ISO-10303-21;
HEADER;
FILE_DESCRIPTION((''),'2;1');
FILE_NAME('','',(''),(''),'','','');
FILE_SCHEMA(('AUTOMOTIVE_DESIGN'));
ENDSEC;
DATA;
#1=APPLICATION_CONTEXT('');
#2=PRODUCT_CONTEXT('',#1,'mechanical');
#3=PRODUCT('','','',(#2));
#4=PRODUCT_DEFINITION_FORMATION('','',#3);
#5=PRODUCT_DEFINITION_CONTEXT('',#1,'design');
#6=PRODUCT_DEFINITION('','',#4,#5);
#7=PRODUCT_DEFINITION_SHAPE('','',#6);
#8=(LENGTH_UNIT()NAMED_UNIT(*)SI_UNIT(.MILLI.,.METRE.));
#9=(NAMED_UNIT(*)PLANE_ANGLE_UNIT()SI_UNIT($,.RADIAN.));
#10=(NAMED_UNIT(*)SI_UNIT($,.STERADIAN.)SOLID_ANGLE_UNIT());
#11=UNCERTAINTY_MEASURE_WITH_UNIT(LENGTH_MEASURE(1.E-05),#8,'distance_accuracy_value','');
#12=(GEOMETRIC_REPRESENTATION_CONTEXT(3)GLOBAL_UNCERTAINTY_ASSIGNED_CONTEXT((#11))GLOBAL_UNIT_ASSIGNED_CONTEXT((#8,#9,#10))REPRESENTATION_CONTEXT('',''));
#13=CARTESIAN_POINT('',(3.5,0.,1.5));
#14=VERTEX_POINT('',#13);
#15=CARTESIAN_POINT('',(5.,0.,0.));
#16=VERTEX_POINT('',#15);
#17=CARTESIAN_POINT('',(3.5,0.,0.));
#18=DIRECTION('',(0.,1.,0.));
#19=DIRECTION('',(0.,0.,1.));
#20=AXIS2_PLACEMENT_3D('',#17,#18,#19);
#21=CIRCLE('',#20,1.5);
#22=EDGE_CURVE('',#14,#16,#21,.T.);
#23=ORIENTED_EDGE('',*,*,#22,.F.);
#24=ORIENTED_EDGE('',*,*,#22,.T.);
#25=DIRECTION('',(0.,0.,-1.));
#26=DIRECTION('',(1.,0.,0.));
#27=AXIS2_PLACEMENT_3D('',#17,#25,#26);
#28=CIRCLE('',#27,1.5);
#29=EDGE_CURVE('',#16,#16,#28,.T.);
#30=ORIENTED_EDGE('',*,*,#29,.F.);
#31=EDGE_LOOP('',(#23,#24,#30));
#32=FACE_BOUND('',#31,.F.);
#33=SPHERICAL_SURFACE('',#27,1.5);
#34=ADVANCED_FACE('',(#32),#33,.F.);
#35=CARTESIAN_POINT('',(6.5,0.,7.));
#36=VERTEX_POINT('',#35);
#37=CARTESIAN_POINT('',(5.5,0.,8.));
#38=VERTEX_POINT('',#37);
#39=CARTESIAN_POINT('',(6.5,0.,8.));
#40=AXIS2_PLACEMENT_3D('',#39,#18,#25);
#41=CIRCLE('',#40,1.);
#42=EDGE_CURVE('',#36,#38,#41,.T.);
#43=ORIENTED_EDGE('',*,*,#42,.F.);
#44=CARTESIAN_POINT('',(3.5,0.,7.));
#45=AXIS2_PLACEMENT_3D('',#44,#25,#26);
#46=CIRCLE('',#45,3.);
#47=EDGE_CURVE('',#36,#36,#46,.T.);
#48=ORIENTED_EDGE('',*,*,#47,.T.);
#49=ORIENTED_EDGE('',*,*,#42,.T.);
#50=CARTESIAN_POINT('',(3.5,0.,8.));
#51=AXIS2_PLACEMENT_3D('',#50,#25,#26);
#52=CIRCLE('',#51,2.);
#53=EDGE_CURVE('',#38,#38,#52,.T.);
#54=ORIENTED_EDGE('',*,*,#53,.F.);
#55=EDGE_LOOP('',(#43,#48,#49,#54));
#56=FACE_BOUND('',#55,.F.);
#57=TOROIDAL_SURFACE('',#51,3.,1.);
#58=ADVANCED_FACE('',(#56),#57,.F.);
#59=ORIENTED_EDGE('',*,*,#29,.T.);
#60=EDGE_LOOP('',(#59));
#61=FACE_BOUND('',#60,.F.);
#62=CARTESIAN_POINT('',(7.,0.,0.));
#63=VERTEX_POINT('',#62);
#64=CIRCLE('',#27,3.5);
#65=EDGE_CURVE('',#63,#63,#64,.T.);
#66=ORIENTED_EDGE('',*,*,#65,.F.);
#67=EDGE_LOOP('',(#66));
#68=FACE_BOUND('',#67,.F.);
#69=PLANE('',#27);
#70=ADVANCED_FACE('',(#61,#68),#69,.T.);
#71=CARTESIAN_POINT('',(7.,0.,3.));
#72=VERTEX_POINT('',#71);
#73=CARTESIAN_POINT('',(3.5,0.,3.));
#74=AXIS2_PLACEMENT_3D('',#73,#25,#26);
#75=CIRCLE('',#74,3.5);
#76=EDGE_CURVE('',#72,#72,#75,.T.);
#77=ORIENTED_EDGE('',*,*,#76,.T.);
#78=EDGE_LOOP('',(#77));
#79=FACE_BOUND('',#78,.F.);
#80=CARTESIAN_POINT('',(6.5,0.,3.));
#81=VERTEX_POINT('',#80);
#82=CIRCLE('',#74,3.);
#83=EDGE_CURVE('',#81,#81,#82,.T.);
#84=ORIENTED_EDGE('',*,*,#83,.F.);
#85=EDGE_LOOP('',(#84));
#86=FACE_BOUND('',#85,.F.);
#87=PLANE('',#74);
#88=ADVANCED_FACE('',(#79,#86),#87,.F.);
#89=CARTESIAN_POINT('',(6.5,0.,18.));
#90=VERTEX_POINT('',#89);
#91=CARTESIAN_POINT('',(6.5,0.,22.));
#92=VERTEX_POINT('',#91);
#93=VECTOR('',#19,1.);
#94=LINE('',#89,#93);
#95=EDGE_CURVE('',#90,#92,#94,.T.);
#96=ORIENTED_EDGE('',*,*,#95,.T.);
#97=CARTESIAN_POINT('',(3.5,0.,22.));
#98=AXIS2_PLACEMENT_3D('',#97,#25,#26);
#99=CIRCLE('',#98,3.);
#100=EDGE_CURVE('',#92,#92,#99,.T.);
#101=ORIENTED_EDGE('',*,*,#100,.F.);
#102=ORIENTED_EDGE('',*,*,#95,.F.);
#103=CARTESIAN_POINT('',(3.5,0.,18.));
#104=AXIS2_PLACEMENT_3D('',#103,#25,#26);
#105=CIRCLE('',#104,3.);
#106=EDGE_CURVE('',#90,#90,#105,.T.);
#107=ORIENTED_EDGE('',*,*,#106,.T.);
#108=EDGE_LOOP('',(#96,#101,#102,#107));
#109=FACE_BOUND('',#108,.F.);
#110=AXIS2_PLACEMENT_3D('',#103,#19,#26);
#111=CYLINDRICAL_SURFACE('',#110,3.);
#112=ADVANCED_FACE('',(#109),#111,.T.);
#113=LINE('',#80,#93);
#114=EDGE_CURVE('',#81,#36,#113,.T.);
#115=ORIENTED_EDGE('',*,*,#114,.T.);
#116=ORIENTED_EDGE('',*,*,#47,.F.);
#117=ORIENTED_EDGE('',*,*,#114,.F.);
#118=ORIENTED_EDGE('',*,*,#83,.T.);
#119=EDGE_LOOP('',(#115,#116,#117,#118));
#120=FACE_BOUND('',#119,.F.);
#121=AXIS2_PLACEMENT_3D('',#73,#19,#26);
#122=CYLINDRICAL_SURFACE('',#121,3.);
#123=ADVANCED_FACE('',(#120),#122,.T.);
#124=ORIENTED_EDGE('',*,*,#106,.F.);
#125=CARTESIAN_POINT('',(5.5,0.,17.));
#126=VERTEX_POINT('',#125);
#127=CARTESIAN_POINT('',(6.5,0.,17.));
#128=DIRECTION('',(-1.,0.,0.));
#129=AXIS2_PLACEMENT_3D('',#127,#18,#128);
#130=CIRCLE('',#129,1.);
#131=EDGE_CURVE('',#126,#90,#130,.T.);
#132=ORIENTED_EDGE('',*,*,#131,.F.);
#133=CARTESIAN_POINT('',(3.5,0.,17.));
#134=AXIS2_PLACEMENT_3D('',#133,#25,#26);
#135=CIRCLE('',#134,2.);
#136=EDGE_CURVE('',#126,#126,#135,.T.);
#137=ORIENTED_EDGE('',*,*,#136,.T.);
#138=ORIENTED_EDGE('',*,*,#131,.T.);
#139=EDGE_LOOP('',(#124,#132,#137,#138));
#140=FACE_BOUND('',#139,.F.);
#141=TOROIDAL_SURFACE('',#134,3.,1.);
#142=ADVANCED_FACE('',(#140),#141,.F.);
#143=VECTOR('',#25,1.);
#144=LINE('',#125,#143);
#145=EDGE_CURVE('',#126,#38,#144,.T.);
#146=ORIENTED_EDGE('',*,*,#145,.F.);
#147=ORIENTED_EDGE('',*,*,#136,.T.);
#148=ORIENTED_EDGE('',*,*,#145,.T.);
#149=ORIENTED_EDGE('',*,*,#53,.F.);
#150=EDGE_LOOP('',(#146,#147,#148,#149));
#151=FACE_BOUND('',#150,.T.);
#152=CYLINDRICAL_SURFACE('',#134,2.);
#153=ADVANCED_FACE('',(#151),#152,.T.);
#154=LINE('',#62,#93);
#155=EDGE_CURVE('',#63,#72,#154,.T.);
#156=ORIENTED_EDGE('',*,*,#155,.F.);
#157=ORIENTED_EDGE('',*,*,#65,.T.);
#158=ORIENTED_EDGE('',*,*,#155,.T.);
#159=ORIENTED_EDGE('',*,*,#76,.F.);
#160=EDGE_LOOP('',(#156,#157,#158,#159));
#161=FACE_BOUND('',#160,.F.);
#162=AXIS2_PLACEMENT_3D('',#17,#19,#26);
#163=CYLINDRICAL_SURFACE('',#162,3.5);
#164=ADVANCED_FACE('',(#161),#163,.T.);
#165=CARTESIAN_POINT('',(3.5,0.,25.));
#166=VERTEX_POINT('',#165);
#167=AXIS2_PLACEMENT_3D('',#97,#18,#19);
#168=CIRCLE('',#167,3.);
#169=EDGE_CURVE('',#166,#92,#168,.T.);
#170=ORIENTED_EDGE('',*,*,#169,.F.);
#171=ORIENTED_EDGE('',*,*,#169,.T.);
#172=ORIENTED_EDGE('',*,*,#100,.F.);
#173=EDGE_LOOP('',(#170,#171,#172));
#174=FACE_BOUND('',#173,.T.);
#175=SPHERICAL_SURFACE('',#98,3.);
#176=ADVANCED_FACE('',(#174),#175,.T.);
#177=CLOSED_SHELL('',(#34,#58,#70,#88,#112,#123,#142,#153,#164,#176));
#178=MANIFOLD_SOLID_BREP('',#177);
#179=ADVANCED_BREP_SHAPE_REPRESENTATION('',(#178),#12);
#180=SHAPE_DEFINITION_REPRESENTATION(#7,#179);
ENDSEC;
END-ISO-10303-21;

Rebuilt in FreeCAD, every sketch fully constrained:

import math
import FreeCAD as App
import Part
import Sketcher
Q = App.Units.Quantity

doc = App.newDocument("Part")
body = doc.addObject("PartDesign::Body", "Body")

# Sketch on XZ plane
sketch1 = doc.addObject("Sketcher::SketchObject", "Sketch")
body.addObject(sketch1)
sketch1.AttachmentSupport = (doc.XZ_Plane, [""])
sketch1.MapMode = "FlatFace"
sketch1.addGeometry(Part.LineSegment(App.Vector(7, 0, 0), App.Vector(5, 0, 0)), False)
sketch1.addGeometry(Part.ArcOfCircle(Part.Circle(App.Vector(3.5, 0, 0), App.Vector(0, 0, 1), 1.5), math.radians(0), math.radians(90)), False)
sketch1.addGeometry(Part.LineSegment(App.Vector(3.5, 1.5, 0), App.Vector(3.5, 25, 0)), False)
sketch1.addGeometry(Part.ArcOfCircle(Part.Circle(App.Vector(3.5, 22, 0), App.Vector(0, 0, 1), 3), math.radians(0), math.radians(90)), False)
sketch1.addGeometry(Part.LineSegment(App.Vector(6.5, 22, 0), App.Vector(6.5, 18, 0)), False)
sketch1.addGeometry(Part.ArcOfCircle(Part.Circle(App.Vector(6.5, 17, 0), App.Vector(0, 0, 1), 1), math.radians(90), math.radians(180)), False)
sketch1.addGeometry(Part.LineSegment(App.Vector(5.5, 17, 0), App.Vector(5.5, 8, 0)), False)
sketch1.addGeometry(Part.ArcOfCircle(Part.Circle(App.Vector(6.5, 8, 0), App.Vector(0, 0, 1), 1), math.radians(180), math.radians(270)), False)
sketch1.addGeometry(Part.LineSegment(App.Vector(6.5, 7, 0), App.Vector(6.5, 3, 0)), False)
sketch1.addGeometry(Part.LineSegment(App.Vector(6.5, 3, 0), App.Vector(7, 3, 0)), False)
sketch1.addGeometry(Part.LineSegment(App.Vector(7, 3, 0), App.Vector(7, 0, 0)), False)
sketch1.addGeometry(Part.LineSegment(App.Vector(3.5, 25, 0), App.Vector(3.5, 0, 0)), True)  # axis
sketch1.addConstraint(Sketcher.Constraint("Coincident", 0, 2, 1, 1))
sketch1.addConstraint(Sketcher.Constraint("Coincident", 1, 2, 2, 1))
sketch1.addConstraint(Sketcher.Constraint("Coincident", 2, 2, 3, 2))
sketch1.addConstraint(Sketcher.Constraint("Tangent", 3, 1, 4, 1))
sketch1.addConstraint(Sketcher.Constraint("Coincident", 4, 2, 5, 1))
sketch1.addConstraint(Sketcher.Constraint("Tangent", 5, 2, 6, 1))
sketch1.addConstraint(Sketcher.Constraint("Tangent", 6, 2, 7, 1))
sketch1.addConstraint(Sketcher.Constraint("Coincident", 7, 2, 8, 1))
sketch1.addConstraint(Sketcher.Constraint("Coincident", 8, 2, 9, 1))
sketch1.addConstraint(Sketcher.Constraint("Coincident", 9, 2, 10, 1))
sketch1.addConstraint(Sketcher.Constraint("Coincident", 10, 2, 0, 1))
sketch1.addConstraint(Sketcher.Constraint("Horizontal", 0))
sketch1.addConstraint(Sketcher.Constraint("Vertical", 2))
sketch1.addConstraint(Sketcher.Constraint("Vertical", 4))
sketch1.addConstraint(Sketcher.Constraint("Vertical", 6))
sketch1.addConstraint(Sketcher.Constraint("Vertical", 8))
sketch1.addConstraint(Sketcher.Constraint("Horizontal", 9))
sketch1.addConstraint(Sketcher.Constraint("Vertical", 10))
sketch1.addConstraint(Sketcher.Constraint("Vertical", 11))
sketch1.addConstraint(Sketcher.Constraint("Coincident", 11, 1, 2, 2))
sketch1.addConstraint(Sketcher.Constraint("Coincident", 11, 2, 1, 3))
sketch1.addConstraint(Sketcher.Constraint("Equal", 5, 7))
sketch1.addConstraint(Sketcher.Constraint("PointOnObject", 1, 3, -1))
sketch1.addConstraint(Sketcher.Constraint("PointOnObject", 0, 2, -1))
sketch1.addConstraint(Sketcher.Constraint("Vertical", 1, 3, 3, 3))
sketch1.addConstraint(Sketcher.Constraint("Vertical", 7, 3, 3, 1))
sketch1.addConstraint(Sketcher.Constraint("Vertical", 4, 2, 7, 2))
sketch1.addConstraint(Sketcher.Constraint("Equal", 4, 8))
sketch1.addConstraint(Sketcher.Constraint("Radius", 3, Q("3 mm")))
sketch1.addConstraint(Sketcher.Constraint("Radius", 5, Q("1 mm")))
sketch1.addConstraint(Sketcher.Constraint("Radius", 1, Q("1.5 mm")))
sketch1.addConstraint(Sketcher.Constraint("DistanceY", 4, 2, 4, 1, Q("4 mm")))
sketch1.addConstraint(Sketcher.Constraint("DistanceY", 10, 2, 10, 1, Q("3 mm")))
sketch1.addConstraint(Sketcher.Constraint("DistanceX", -1, 1, 9, 2, Q("7 mm")))
sketch1.addConstraint(Sketcher.Constraint("DistanceX", 0, 2, 0, 1, Q("2 mm")))
sketch1.addConstraint(Sketcher.Constraint("DistanceY", 6, 2, 6, 1, Q("9 mm")))
revolution = doc.addObject("PartDesign::Revolution", "Revolution")
body.addObject(revolution)
revolution.Profile = sketch1
revolution.ReferenceAxis = (sketch1, ["Axis0"])
revolution.Angle = 360

doc.recompute()
